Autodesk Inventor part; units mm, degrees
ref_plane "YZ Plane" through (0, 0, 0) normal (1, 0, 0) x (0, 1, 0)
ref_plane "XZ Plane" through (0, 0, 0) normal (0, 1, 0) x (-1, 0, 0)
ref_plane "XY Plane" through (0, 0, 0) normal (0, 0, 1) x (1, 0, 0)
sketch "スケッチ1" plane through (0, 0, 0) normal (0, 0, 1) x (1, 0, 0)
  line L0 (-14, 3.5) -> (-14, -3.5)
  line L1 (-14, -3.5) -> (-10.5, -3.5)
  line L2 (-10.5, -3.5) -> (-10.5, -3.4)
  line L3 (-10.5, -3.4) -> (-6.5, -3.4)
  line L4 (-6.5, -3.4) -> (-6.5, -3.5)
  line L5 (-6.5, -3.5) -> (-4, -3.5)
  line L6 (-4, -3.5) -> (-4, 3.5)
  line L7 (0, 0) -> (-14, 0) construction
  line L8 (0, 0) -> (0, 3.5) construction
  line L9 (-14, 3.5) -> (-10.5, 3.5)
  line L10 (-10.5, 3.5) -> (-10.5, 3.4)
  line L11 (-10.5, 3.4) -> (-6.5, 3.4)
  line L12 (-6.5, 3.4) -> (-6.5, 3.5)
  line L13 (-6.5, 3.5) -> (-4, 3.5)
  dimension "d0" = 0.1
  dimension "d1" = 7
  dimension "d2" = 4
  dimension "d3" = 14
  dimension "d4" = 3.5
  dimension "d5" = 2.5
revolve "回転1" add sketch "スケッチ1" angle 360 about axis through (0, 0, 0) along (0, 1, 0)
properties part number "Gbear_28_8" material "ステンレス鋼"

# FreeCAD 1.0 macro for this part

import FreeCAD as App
import Part
import Sketcher

V = App.Vector
Q = App.Units.Quantity


def add_polygon(sketch, points):
    """Adds a closed chain of lines whose ends are joined by coincident constraints."""
    first, n = sketch.GeometryCount, len(points)
    for a, b in zip(points, points[1:] + points[:1]):
        sketch.addGeometry(Part.LineSegment(App.Vector(*a, 0), App.Vector(*b, 0)), False)
    for i in range(n):
        sketch.addConstraint(Sketcher.Constraint("Coincident", first + i, 2, first + (i + 1) % n, 1))

doc = App.newDocument("Part")
body = doc.addObject("PartDesign::Body", "Body")

sketch1 = body.newObject("Sketcher::SketchObject", "Sketch")
sketch1.AttachmentSupport = (doc.getObject("XY_Plane"), [""])
sketch1.MapMode = "FlatFace"
add_polygon(sketch1, [(-10.5, 3.5), (-14, 3.5), (-14, -3.5), (-10.5, -3.5), (-10.5, -3.4), (-6.5, -3.4), (-6.5, -3.5), (-4, -3.5), (-4, 3.5), (-6.5, 3.5), (-6.5, 3.4), (-10.5, 3.4)])
sketch1.addConstraint([
    Sketcher.Constraint("Horizontal", 0),
    Sketcher.Constraint("Vertical", 1),
    Sketcher.Constraint("Horizontal", 2),
    Sketcher.Constraint("Vertical", 3),
    Sketcher.Constraint("Horizontal", 4),
    Sketcher.Constraint("Vertical", 5),
    Sketcher.Constraint("Horizontal", 6),
    Sketcher.Constraint("Vertical", 7),
    Sketcher.Constraint("Horizontal", 8),
    Sketcher.Constraint("Vertical", 9),
    Sketcher.Constraint("Horizontal", 10),
    Sketcher.Constraint("Vertical", 11),
    Sketcher.Constraint("Symmetric", 5, 2, 8, 2, -1),
    Sketcher.Constraint("Symmetric", 3, 2, 10, 2, -1),
    Sketcher.Constraint("Horizontal", 2, 2, 5, 2),
    Sketcher.Constraint("Horizontal", 0, 2, 7, 2),
    Sketcher.Constraint("DistanceX", 4, 1, 4, 2, Q("4 mm")),
    Sketcher.Constraint("DistanceY", 1, 2, 1, 1, Q("7 mm")),
    Sketcher.Constraint("DistanceX", 0, 2, 0, 1, Q("3.5 mm")),
    Sketcher.Constraint("DistanceX", 6, 1, 6, 2, Q("2.5 mm")),
    Sketcher.Constraint("DistanceY", 3, 1, 3, 2, Q("0.1 mm")),
    Sketcher.Constraint("DistanceX", 0, 2, -1, 1, Q("14 mm")),
])
revolution = body.newObject("PartDesign::Revolution", "Revolution")
revolution.Profile = sketch1
revolution.ReferenceAxis = (sketch1, ["V_Axis"])
revolution.Angle = 360

doc.recompute()
